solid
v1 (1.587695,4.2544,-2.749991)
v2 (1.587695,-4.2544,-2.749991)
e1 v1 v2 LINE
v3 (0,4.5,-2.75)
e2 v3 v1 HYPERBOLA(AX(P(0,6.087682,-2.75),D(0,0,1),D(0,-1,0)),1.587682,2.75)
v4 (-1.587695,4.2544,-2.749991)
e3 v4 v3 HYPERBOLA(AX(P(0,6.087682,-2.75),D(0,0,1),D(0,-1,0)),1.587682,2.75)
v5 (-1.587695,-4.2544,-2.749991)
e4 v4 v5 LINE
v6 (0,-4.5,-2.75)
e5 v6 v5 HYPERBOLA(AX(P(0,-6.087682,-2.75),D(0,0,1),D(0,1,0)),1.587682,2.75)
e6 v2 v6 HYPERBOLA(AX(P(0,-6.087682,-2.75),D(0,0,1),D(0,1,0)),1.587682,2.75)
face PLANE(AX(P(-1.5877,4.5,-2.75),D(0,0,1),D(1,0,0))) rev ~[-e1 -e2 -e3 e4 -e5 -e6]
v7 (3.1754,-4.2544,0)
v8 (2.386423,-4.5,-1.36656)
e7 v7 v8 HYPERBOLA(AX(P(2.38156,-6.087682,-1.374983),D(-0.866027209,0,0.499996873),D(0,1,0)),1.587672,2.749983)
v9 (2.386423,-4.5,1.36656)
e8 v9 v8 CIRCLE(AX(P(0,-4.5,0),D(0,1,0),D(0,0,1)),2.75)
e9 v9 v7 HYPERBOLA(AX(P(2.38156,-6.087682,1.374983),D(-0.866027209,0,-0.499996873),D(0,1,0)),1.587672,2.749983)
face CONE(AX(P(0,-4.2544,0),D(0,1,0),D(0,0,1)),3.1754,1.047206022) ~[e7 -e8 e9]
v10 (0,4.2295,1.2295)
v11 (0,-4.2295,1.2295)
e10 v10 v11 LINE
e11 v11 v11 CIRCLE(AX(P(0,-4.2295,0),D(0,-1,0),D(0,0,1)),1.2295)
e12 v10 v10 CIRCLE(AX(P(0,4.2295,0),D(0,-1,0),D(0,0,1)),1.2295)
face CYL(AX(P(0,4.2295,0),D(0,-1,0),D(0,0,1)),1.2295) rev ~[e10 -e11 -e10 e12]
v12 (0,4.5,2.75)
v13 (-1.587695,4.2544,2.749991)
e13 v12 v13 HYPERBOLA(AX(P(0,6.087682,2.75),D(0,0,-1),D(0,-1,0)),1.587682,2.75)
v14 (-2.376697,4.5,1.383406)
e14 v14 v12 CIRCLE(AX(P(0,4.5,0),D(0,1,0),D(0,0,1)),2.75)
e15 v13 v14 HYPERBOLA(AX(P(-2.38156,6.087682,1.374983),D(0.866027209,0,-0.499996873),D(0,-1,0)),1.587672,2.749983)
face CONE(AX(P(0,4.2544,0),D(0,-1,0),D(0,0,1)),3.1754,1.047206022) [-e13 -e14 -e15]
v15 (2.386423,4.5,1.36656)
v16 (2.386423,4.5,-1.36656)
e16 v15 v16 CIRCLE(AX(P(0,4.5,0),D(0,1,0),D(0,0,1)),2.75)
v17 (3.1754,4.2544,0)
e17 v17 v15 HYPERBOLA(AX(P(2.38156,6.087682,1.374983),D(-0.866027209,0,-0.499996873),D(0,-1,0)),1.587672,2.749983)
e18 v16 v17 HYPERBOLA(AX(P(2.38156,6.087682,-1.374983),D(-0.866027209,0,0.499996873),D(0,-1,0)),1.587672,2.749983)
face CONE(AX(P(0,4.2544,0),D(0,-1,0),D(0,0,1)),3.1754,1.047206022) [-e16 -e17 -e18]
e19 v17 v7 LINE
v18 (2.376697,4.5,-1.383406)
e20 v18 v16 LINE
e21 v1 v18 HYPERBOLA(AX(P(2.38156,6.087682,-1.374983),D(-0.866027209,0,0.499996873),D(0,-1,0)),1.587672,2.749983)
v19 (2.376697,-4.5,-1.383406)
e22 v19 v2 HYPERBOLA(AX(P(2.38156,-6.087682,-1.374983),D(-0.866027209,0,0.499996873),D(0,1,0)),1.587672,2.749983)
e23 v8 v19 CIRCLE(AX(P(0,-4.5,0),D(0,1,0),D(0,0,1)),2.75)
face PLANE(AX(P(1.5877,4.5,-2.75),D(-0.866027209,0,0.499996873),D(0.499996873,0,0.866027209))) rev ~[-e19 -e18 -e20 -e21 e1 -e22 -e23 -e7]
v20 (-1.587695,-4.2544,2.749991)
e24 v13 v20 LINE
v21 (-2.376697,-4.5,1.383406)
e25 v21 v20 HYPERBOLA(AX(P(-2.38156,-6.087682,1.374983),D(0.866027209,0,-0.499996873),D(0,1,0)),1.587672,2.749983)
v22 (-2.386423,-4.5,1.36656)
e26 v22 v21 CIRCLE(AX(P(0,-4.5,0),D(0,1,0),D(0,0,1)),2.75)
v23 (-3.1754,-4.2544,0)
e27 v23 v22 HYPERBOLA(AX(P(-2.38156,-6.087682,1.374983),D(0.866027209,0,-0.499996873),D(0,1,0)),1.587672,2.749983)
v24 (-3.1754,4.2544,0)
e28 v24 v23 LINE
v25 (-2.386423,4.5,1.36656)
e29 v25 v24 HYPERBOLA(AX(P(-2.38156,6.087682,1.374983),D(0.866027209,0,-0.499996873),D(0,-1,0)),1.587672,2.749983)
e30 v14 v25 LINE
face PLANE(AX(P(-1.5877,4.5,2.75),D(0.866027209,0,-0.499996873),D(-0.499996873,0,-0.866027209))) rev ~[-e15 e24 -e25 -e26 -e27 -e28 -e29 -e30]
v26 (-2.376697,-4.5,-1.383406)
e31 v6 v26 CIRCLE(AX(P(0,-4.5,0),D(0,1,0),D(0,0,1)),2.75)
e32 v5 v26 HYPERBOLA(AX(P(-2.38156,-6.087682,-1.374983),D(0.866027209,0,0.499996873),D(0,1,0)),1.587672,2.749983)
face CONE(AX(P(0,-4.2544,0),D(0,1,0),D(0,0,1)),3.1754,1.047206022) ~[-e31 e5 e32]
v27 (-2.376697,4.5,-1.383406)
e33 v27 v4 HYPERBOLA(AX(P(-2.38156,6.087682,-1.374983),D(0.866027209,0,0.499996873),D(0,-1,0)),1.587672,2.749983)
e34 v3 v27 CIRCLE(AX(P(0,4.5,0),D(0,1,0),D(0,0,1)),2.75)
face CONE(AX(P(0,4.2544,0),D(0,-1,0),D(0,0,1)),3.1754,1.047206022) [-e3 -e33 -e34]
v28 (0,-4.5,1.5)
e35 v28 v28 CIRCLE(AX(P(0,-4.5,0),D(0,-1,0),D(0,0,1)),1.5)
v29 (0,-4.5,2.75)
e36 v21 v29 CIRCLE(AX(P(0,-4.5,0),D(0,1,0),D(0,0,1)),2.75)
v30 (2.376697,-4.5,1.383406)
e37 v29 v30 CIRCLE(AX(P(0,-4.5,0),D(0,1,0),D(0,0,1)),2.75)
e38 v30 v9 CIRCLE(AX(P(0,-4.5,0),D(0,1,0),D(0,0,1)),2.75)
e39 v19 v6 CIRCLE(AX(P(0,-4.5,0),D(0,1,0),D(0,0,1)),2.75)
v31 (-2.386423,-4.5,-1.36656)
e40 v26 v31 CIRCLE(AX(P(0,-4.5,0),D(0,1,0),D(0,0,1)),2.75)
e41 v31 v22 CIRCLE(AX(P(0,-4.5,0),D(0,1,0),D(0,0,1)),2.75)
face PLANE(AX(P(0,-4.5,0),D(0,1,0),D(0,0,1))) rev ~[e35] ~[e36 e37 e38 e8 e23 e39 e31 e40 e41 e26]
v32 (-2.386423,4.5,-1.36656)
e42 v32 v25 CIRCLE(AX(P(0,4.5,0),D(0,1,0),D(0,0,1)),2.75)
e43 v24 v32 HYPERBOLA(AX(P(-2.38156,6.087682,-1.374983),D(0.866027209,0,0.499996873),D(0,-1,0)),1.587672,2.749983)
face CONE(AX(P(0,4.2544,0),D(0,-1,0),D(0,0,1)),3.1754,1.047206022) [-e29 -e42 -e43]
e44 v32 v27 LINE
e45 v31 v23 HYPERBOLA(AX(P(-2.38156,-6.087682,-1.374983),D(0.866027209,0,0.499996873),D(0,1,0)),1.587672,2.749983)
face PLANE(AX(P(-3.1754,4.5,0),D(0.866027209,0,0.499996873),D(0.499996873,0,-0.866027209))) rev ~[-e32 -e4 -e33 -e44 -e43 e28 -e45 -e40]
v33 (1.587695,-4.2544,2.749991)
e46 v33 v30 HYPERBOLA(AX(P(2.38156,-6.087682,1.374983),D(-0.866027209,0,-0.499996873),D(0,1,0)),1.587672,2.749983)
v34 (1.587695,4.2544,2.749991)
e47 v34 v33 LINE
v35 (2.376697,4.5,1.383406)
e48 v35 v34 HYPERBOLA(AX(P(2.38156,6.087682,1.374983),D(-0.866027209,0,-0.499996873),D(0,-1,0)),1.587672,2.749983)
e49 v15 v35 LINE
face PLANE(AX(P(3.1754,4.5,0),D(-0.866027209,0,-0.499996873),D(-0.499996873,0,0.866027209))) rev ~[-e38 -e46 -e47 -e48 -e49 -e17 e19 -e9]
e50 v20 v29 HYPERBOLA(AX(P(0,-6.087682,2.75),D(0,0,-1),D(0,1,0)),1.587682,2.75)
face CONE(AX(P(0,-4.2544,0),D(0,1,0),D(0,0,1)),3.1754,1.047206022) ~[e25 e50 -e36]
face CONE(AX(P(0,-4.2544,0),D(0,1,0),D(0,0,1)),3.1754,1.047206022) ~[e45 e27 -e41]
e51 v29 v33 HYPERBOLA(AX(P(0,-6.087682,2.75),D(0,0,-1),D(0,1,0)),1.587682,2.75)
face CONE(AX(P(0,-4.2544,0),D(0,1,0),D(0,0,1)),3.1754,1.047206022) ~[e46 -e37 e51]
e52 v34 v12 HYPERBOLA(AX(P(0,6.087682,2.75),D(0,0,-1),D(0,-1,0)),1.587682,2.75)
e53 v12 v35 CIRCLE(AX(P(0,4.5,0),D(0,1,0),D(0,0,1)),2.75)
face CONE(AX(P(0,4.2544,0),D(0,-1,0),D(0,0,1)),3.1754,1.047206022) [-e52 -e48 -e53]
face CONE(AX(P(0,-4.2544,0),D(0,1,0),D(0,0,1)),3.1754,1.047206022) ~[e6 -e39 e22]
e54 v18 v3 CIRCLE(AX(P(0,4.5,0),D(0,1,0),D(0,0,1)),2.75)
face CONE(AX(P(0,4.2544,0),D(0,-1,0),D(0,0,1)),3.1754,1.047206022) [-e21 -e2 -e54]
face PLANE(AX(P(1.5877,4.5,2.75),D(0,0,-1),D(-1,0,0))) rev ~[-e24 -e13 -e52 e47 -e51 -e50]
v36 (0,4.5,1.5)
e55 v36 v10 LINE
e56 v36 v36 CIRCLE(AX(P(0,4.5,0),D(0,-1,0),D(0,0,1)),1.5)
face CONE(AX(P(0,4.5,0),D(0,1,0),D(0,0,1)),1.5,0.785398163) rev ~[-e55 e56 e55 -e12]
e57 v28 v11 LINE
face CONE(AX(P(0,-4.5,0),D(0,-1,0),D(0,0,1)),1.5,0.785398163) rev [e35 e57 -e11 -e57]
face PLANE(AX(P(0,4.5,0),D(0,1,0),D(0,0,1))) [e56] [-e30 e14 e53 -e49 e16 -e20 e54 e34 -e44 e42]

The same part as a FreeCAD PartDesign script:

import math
import FreeCAD as App
import Part
import Sketcher
from FreeCAD import Vector
Q = App.Units.Quantity


def add_polygon(sketch, points):
    """Adds a closed chain of lines whose ends are joined by coincident constraints."""
    first, n = sketch.GeometryCount, len(points)
    for a, b in zip(points, points[1:] + points[:1]):
        sketch.addGeometry(Part.LineSegment(App.Vector(*a, 0), App.Vector(*b, 0)), False)
    for i in range(n):
        sketch.addConstraint(Sketcher.Constraint("Coincident", first + i, 2, first + (i + 1) % n, 1))

doc = App.newDocument("Part")
params = doc.addObject("Spreadsheet::Sheet", "Params")
for row, (alias, value) in enumerate([
    ("sketch1_width", "9 mm"),
    ("sketch1_height", "2.75 mm"),
    ("revolution_angle", "360 deg"),
    ("hole_diameter", "2.459 mm"),
    ("hole_csink_diameter", "3 mm"),
], start=1):
    params.set(f"A{row}", alias)
    params.set(f"B{row}", "=" + value)
    params.setAlias(f"B{row}", alias)

body = doc.addObject("PartDesign::Body", "Body")

# Sketch on YZ plane
sketch1 = body.newObject("Sketcher::SketchObject", "Sketch")
sketch1.AttachmentSupport = (doc.getObject("YZ_Plane"), [""])
sketch1.MapMode = "FlatFace"
add_polygon(sketch1, [(-4.5, 2.75), (-4.5, 0), (4.5, 0), (4.5, 2.75), (4.2544, 3.1754), (-4.2544, 3.1754)])  # lines 0-5
sketch1.addConstraint([
    Sketcher.Constraint("Vertical", 0),
    Sketcher.Constraint("Horizontal", 1),
    Sketcher.Constraint("Vertical", 2),
    Sketcher.Constraint("Horizontal", 4),
    Sketcher.Constraint("Symmetric", 0, 2, 1, 2, -1, 1),
    Sketcher.Constraint("Horizontal", 2, 2, 5, 2),
    Sketcher.Constraint("Equal", 3, 5),
    Sketcher.Constraint("DistanceX", 1, 1, 1, 2, Q("9 mm")),
    Sketcher.Constraint("DistanceY", 0, 2, 0, 1, Q("2.75 mm")),
    Sketcher.Constraint("Angle", 3, Q("119.9995 deg")),
    Sketcher.Constraint("DistanceY", -1, 1, 3, 2, Q("3.1754 mm")),
])
sketch1.setExpression("Constraints[13]", "Params.sketch1_width")
sketch1.setExpression("Constraints[14]", "Params.sketch1_height")
revolution = body.newObject("PartDesign::Revolution", "Revolution")
revolution.Profile = sketch1
revolution.ReferenceAxis = (sketch1, ["H_Axis"])
revolution.setExpression("Angle", "Params.revolution_angle")

# Sketch on XZ plane
sketch2 = body.newObject("Sketcher::SketchObject", "Sketch001")
sketch2.AttachmentSupport = (doc.getObject("XZ_Plane"), [""])
sketch2.MapMode = "FlatFace"
sketch2.AttachmentOffset = App.Placement(Vector(0, 0, -4.5), App.Rotation())
sketch2.addGeometry([
    Part.LineSegment(Vector(1.5877, -2.75, 0), Vector(3.1754, 0, 0)),  # 0
    Part.ArcOfCircle(Part.Circle(Vector(0, 0, 0), Vector(0, 0, 1), 3.1754), math.radians(-60.000207), math.radians(0)),  # 1
    Part.ArcOfCircle(Part.Circle(Vector(0, 0, 0), Vector(0, 0, 1), 3.1754), math.radians(0), math.radians(60.000207)),  # 2
    Part.LineSegment(Vector(3.1754, 0, 0), Vector(1.5877, 2.75, 0)),  # 3
    Part.LineSegment(Vector(-1.5877, -2.75, 0), Vector(1.5877, -2.75, 0)),  # 4
    Part.ArcOfCircle(Part.Circle(Vector(0, 0, 0), Vector(0, 0, 1), 3.1754), math.radians(-119.999793), math.radians(-60.000207)),  # 5
    Part.ArcOfCircle(Part.Circle(Vector(0, 0, 0), Vector(0, 0, 1), 3.1754), math.radians(60.000207), math.radians(119.999793)),  # 6
    Part.LineSegment(Vector(-1.5877, 2.75, 0), Vector(1.5877, 2.75, 0)),  # 7
    Part.LineSegment(Vector(-3.1754, 0, 0), Vector(-1.5877, -2.75, 0)),  # 8
    Part.ArcOfCircle(Part.Circle(Vector(0, 0, 0), Vector(0, 0, 1), 3.1754), math.radians(180), math.radians(240.000207)),  # 9
    Part.ArcOfCircle(Part.Circle(Vector(0, 0, 0), Vector(0, 0, 1), 3.1754), math.radians(119.999793), math.radians(180)),  # 10
    Part.LineSegment(Vector(-3.1754, 0, 0), Vector(-1.5877, 2.75, 0)),  # 11
], False)
sketch2.addConstraint([
    Sketcher.Constraint("Coincident", 0, 1, 1, 1),
    Sketcher.Constraint("Coincident", 1, 2, 0, 2),
    Sketcher.Constraint("Coincident", 2, 1, 3, 1),
    Sketcher.Constraint("Coincident", 3, 2, 2, 2),
    Sketcher.Constraint("Coincident", 4, 1, 5, 1),
    Sketcher.Constraint("Coincident", 5, 2, 4, 2),
    Sketcher.Constraint("Coincident", 6, 1, 7, 2),
    Sketcher.Constraint("Coincident", 7, 1, 6, 2),
    Sketcher.Constraint("Coincident", 8, 1, 9, 1),
    Sketcher.Constraint("Coincident", 9, 2, 8, 2),
    Sketcher.Constraint("Coincident", 10, 1, 11, 2),
    Sketcher.Constraint("Coincident", 11, 1, 10, 2),
    Sketcher.Constraint("Horizontal", 4),
    Sketcher.Constraint("Horizontal", 7),
    Sketcher.Constraint("Coincident", 1, 3, -1, 1),
    Sketcher.Constraint("Coincident", 2, 3, -1, 1),
    Sketcher.Constraint("Coincident", 5, 3, -1, 1),
    Sketcher.Constraint("Coincident", 6, 3, -1, 1),
    Sketcher.Constraint("Coincident", 9, 3, -1, 1),
    Sketcher.Constraint("Coincident", 10, 3, -1, 1),
    Sketcher.Constraint("Coincident", 2, 1, 1, 2),
    Sketcher.Constraint("Coincident", 5, 2, 0, 1),
    Sketcher.Constraint("Coincident", 6, 1, 3, 2),
    Sketcher.Constraint("Coincident", 9, 2, 4, 1),
    Sketcher.Constraint("Coincident", 10, 1, 7, 1),
    Sketcher.Constraint("PointOnObject", 1, 2, -1),
    Sketcher.Constraint("PointOnObject", 8, 1, -1),
    Sketcher.Constraint("PointOnObject", 11, 1, -1),
    Sketcher.Constraint("Parallel", 3, 8),
    Sketcher.Constraint("Angle", 0, Q("60.0002 deg")),
    Sketcher.Constraint("Radius", 1, Q("3.1754 mm")),
])
pocket1 = body.newObject("PartDesign::Pocket", "Pocket")
pocket1.Profile = sketch2
pocket1.Type = "ThroughAll"
pocket1.Reversed = True

# Sketch on XZ plane
sketch3 = body.newObject("Sketcher::SketchObject", "Sketch002")
sketch3.AttachmentSupport = (doc.getObject("XZ_Plane"), [""])
sketch3.MapMode = "FlatFace"
sketch3.AttachmentOffset = App.Placement(Vector(0, 0, -4.5), App.Rotation())
sketch3.addGeometry(Part.Circle(Vector(0, 0, 0), Vector(0, 0, 1), 1.2295), False)
sketch3.addConstraint([
    Sketcher.Constraint("Coincident", 0, 3, -1, 1),
    Sketcher.Constraint("Diameter", 0, Q("2.459 mm")),
])
doc.recompute()
hole = body.newObject("PartDesign::Hole", "Hole")
hole.Profile = sketch3
hole.ThreadType = "None"
hole.setExpression("Diameter", "Params.hole_diameter")
hole.DepthType = "ThroughAll"
hole.HoleCutType = "Countersink"
hole.setExpression("HoleCutDiameter", "Params.hole_csink_diameter")
hole.HoleCutCountersinkAngle = 90
hole.Reversed = True
doc.recompute()

mirrored = body.newObject("PartDesign::Mirrored", "Mirrored")
mirrored.Originals = [hole]
mirrored.MirrorPlane = (doc.getObject("XZ_Plane"), [""])
body.Tip = mirrored

doc.recompute()
